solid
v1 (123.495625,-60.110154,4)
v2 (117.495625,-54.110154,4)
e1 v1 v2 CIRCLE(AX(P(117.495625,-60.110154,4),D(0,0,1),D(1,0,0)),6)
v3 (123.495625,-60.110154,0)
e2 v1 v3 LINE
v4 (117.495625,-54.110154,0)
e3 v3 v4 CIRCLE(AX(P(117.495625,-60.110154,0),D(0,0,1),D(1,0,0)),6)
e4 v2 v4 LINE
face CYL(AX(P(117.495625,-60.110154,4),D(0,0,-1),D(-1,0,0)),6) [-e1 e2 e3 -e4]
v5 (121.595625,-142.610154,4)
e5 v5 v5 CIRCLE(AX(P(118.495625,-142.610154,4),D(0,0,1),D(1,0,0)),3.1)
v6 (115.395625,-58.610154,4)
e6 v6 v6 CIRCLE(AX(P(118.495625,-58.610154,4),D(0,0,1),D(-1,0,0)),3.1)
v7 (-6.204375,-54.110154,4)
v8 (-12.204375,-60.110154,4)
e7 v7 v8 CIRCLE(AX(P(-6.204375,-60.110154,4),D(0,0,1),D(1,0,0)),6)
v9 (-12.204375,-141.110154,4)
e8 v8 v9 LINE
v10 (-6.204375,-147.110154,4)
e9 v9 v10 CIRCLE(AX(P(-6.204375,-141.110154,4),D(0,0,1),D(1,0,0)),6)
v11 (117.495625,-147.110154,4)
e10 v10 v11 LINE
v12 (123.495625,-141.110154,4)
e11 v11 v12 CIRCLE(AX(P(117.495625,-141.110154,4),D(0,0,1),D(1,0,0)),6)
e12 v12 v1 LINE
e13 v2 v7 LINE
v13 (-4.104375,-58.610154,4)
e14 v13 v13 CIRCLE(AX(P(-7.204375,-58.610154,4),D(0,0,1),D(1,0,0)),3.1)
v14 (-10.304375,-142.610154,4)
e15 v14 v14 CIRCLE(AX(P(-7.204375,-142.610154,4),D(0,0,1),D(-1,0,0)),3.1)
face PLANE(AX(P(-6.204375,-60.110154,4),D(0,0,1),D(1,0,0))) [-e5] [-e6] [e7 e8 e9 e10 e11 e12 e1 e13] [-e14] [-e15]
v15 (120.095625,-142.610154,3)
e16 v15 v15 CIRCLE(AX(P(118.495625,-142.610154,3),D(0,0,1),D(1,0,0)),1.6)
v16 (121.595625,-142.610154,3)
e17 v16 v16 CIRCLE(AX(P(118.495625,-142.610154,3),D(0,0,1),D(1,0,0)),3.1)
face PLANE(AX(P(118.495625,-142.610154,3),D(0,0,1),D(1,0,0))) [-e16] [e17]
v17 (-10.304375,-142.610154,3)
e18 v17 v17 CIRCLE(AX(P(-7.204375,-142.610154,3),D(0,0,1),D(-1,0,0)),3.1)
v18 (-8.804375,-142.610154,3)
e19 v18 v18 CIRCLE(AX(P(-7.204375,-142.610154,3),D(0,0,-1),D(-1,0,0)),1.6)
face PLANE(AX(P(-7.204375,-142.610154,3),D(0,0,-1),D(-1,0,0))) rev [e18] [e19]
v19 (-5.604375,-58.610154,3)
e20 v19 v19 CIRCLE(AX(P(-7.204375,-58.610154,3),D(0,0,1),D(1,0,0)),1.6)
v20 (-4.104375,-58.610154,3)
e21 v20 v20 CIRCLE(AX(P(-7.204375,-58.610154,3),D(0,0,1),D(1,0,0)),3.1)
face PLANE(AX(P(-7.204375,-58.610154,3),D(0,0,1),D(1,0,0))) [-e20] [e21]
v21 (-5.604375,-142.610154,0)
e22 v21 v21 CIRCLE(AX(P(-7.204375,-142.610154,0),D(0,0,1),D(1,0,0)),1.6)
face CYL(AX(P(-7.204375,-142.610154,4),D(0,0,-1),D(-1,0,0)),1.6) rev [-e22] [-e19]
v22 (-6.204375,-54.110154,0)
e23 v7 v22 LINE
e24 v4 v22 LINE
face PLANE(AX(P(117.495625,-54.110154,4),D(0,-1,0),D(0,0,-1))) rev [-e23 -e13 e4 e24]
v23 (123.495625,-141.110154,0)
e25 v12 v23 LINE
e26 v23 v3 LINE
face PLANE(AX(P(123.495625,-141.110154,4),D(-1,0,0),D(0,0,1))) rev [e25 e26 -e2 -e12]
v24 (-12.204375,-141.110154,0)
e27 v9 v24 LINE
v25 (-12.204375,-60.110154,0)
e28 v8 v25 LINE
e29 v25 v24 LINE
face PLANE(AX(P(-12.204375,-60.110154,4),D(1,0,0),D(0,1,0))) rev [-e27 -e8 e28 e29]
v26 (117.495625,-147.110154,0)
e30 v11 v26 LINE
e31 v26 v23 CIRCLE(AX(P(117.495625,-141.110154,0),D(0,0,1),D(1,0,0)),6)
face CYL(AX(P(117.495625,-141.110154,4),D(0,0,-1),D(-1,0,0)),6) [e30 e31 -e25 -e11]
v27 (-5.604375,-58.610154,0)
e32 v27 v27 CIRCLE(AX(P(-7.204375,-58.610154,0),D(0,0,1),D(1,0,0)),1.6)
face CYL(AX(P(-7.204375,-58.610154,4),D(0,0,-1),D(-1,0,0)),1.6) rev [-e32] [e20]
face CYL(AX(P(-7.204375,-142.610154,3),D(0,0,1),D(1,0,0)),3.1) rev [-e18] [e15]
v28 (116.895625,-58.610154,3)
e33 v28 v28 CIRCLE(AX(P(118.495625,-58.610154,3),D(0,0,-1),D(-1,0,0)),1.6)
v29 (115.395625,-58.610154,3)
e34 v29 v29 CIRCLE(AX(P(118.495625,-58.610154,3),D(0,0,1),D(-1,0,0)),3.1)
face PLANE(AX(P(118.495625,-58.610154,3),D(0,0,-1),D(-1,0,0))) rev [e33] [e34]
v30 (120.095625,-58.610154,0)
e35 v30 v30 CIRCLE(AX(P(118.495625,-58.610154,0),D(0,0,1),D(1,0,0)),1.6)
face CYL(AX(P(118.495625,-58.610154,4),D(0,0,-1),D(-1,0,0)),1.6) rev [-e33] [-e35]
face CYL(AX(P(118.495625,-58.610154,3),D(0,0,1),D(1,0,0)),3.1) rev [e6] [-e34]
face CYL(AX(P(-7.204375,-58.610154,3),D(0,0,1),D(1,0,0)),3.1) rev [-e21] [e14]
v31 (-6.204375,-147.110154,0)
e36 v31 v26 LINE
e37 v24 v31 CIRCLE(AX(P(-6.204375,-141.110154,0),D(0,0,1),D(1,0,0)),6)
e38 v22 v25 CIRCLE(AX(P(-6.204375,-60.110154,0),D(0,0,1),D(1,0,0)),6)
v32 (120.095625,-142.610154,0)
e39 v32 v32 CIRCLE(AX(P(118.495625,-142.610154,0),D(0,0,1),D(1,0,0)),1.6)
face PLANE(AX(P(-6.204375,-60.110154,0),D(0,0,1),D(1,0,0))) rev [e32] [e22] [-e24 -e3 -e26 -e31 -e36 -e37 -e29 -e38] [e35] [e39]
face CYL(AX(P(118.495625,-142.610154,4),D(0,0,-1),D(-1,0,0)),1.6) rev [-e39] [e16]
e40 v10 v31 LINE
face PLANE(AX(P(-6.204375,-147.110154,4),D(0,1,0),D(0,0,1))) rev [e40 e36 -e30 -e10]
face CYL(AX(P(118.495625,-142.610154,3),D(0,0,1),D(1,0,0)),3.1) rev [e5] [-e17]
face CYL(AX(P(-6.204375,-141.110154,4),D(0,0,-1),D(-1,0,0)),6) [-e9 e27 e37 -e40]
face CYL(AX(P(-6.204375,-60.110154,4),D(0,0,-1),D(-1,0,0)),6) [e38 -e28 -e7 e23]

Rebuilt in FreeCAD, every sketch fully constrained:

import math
import FreeCAD as App
import Part
import Sketcher
from FreeCAD import Vector

doc = App.newDocument("Part")
body = doc.addObject("PartDesign::Body", "Body")

# Sketch on XY plane
sketch1 = body.newObject("Sketcher::SketchObject", "Sketch")
sketch1.AttachmentSupport = (doc.getObject("XY_Plane"), [""])
sketch1.MapMode = "FlatFace"
sketch1.addGeometry([
    Part.LineSegment(Vector(-12.2, -60.1, 0), Vector(-12.2, -141.1, 0)),  # 0
    Part.ArcOfCircle(Part.Circle(Vector(-6.2, -141.1, 0), Vector(0, 0, 1), 6), math.radians(180), math.radians(270)),  # 1
    Part.LineSegment(Vector(-6.2, -147.1, 0), Vector(117.5, -147.1, 0)),  # 2
    Part.ArcOfCircle(Part.Circle(Vector(117.5, -141.1, 0), Vector(0, 0, 1), 6), math.radians(-90), math.radians(0)),  # 3
    Part.LineSegment(Vector(123.5, -141.1, 0), Vector(123.5, -60.1, 0)),  # 4
    Part.ArcOfCircle(Part.Circle(Vector(117.5, -60.1, 0), Vector(0, 0, 1), 6), math.radians(0), math.radians(90)),  # 5
    Part.LineSegment(Vector(117.5, -54.1, 0), Vector(-6.2, -54.1, 0)),  # 6
    Part.ArcOfCircle(Part.Circle(Vector(-6.2, -60.1, 0), Vector(0, 0, 1), 6), math.radians(90), math.radians(180)),  # 7
    Part.Circle(Vector(-7.2, -142.6, 0), Vector(0, 0, 1), 1.6),  # 8
    Part.Circle(Vector(118.5, -142.6, 0), Vector(0, 0, 1), 1.6),  # 9
    Part.Circle(Vector(-7.2, -58.6, 0), Vector(0, 0, 1), 1.6),  # 10
    Part.Circle(Vector(118.5, -58.6, 0), Vector(0, 0, 1), 1.6),  # 11
], False)
sketch1.addConstraint([
    Sketcher.Constraint("Tangent", 0, 2, 1, 1),
    Sketcher.Constraint("Tangent", 1, 2, 2, 1),
    Sketcher.Constraint("Tangent", 2, 2, 3, 1),
    Sketcher.Constraint("Tangent", 3, 2, 4, 1),
    Sketcher.Constraint("Tangent", 4, 2, 5, 1),
    Sketcher.Constraint("Tangent", 5, 2, 6, 1),
    Sketcher.Constraint("Tangent", 6, 2, 7, 1),
    Sketcher.Constraint("Tangent", 7, 2, 0, 1),
    Sketcher.Constraint("Vertical", 0),
    Sketcher.Constraint("Horizontal", 2),
    Sketcher.Constraint("Vertical", 4),
    Sketcher.Constraint("Horizontal", 6),
    Sketcher.Constraint("Equal", 1, 3),
    Sketcher.Constraint("Equal", 3, 5),
    Sketcher.Constraint("Equal", 5, 7),
    Sketcher.Constraint("Equal", 8, 9),
    Sketcher.Constraint("Equal", 9, 10),
    Sketcher.Constraint("Equal", 10, 11),
    Sketcher.Constraint("Horizontal", 8, 3, 9, 3),
    Sketcher.Constraint("Horizontal", 10, 3, 11, 3),
    Sketcher.Constraint("Vertical", 8, 3, 10, 3),
    Sketcher.Constraint("Vertical", 9, 3, 11, 3),
    Sketcher.Constraint("Radius", 1, 6.0),
    Sketcher.Constraint("Diameter", 8, 3.2),
    Sketcher.Constraint("DistanceY", 0, 2, 0, 1, 81.0),
    Sketcher.Constraint("DistanceX", 2, 1, 2, 2, 123.7),
    Sketcher.Constraint("DistanceX", 8, 3, 1, 3, 1.0),
    Sketcher.Constraint("DistanceX", 3, 3, 9, 3, 1.0),
    Sketcher.Constraint("DistanceY", 8, 3, 10, 3, 84.0),
    Sketcher.Constraint("DistanceY", 8, 3, 1, 3, 1.5),
    Sketcher.Constraint("DistanceX", 1, 3, -1, 1, 6.204375),
    Sketcher.Constraint("DistanceY", 1, 3, -1, 1, 141.110154),
])
pad1 = body.newObject("PartDesign::Pad", "Pad")
pad1.Profile = sketch1
pad1.Length = 4

# Sketch on XY plane
sketch2 = body.newObject("Sketcher::SketchObject", "Sketch001")
sketch2.AttachmentSupport = (doc.getObject("XY_Plane"), [""])
sketch2.MapMode = "FlatFace"
sketch2.AttachmentOffset = App.Placement(Vector(0, 0, 4), App.Rotation())
sketch2.addGeometry([
    Part.Circle(Vector(-7.2, -58.6, 0), Vector(0, 0, 1), 3.1),
    Part.Circle(Vector(118.5, -58.6, 0), Vector(0, 0, 1), 3.1),
    Part.Circle(Vector(118.5, -142.6, 0), Vector(0, 0, 1), 3.1),
    Part.Circle(Vector(-7.2, -142.6, 0), Vector(0, 0, 1), 3.1),
], False)
sketch2.addConstraint([
    Sketcher.Constraint("Equal", 0, 1),
    Sketcher.Constraint("Equal", 1, 2),
    Sketcher.Constraint("Equal", 2, 3),
    Sketcher.Constraint("Horizontal", 0, 3, 1, 3),
    Sketcher.Constraint("Horizontal", 2, 3, 3, 3),
    Sketcher.Constraint("Vertical", 1, 3, 2, 3),
    Sketcher.Constraint("Vertical", 0, 3, 3, 3),
    Sketcher.Constraint("Diameter", 0, 6.2),
    Sketcher.Constraint("DistanceY", 2, 3, 1, 3, 84.0),
    Sketcher.Constraint("DistanceX", 0, 3, 1, 3, 125.7),
    Sketcher.Constraint("DistanceX", 0, 3, -1, 1, 7.204375),
    Sketcher.Constraint("DistanceY", 0, 3, -1, 1, 58.610154),
])
pocket1 = body.newObject("PartDesign::Pocket", "Pocket")
pocket1.Profile = sketch2
pocket1.Length = 1

doc.recompute()
